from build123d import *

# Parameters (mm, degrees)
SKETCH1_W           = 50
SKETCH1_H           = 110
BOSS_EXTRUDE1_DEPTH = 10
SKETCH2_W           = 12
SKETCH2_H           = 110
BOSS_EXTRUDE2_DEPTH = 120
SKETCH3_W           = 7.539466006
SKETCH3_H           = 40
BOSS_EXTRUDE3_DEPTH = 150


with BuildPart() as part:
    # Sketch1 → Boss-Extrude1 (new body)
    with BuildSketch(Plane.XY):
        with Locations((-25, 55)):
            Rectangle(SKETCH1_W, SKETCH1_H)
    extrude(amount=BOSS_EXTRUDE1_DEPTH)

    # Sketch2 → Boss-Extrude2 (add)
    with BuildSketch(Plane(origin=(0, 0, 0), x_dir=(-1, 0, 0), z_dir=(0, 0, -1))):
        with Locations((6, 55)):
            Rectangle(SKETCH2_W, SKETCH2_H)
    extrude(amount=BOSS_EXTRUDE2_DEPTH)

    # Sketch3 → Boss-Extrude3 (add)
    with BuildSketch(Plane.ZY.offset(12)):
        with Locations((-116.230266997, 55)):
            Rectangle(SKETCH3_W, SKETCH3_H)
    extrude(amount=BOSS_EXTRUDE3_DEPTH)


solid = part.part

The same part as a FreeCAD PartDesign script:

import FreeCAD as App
import Part
import Sketcher

V = App.Vector

doc = App.newDocument("Part")
body = doc.addObject("PartDesign::Body", "Body")

# Sketch on XY plane
sketch1 = body.newObject("Sketcher::SketchObject", "Sketch")
sketch1.AttachmentSupport = (doc.getObject("XY_Plane"), [""])
sketch1.MapMode = "FlatFace"
sketch1.addGeometry([
    Part.LineSegment(V(-50, 110, 0), V(-50, 0, 0)),
    Part.LineSegment(V(-50, 0, 0), V(0, 0, 0)),
    Part.LineSegment(V(0, 0, 0), V(0, 110, 0)),
    Part.LineSegment(V(0, 110, 0), V(-50, 110, 0)),
], False)
sketch1.addConstraint([
    Sketcher.Constraint("Coincident", 0, 2, 1, 1),
    Sketcher.Constraint("Coincident", 1, 2, 2, 1),
    Sketcher.Constraint("Coincident", 2, 2, 3, 1),
    Sketcher.Constraint("Coincident", 3, 2, 0, 1),
    Sketcher.Constraint("Vertical", 0),
    Sketcher.Constraint("Horizontal", 1),
    Sketcher.Constraint("Vertical", 2),
    Sketcher.Constraint("Horizontal", 3),
    Sketcher.Constraint("Coincident", 1, 2, -1, 1),
    Sketcher.Constraint("DistanceX", 1, 1, 1, 2, 50.0),
    Sketcher.Constraint("DistanceY", 0, 2, 0, 1, 110.0),
])
pad1 = body.newObject("PartDesign::Pad", "Pad")
pad1.Profile = sketch1
pad1.Length = 10

# Sketch on XY plane
sketch2 = body.newObject("Sketcher::SketchObject", "Sketch001")
sketch2.AttachmentSupport = (doc.getObject("XY_Plane"), [""])
sketch2.MapMode = "FlatFace"
sketch2.addGeometry([
    Part.LineSegment(V(0, 110, 0), V(0, 0, 0)),
    Part.LineSegment(V(0, 0, 0), V(-12, 0, 0)),
    Part.LineSegment(V(-12, 0, 0), V(-12, 110, 0)),
    Part.LineSegment(V(-12, 110, 0), V(0, 110, 0)),
], False)
sketch2.addConstraint([
    Sketcher.Constraint("Coincident", 0, 2, 1, 1),
    Sketcher.Constraint("Coincident", 1, 2, 2, 1),
    Sketcher.Constraint("Coincident", 2, 2, 3, 1),
    Sketcher.Constraint("Coincident", 3, 2, 0, 1),
    Sketcher.Constraint("Vertical", 0),
    Sketcher.Constraint("Horizontal", 1),
    Sketcher.Constraint("Vertical", 2),
    Sketcher.Constraint("Horizontal", 3),
    Sketcher.Constraint("Coincident", 0, 2, -1, 1),
    Sketcher.Constraint("DistanceX", 1, 2, 1, 1, 12.0),
    Sketcher.Constraint("DistanceY", 0, 2, 0, 1, 110.0),
])
pad2 = body.newObject("PartDesign::Pad", "Pad001")
pad2.Profile = sketch2
pad2.Length = 120
pad2.Reversed = True

# Sketch on YZ plane
sketch3 = body.newObject("Sketcher::SketchObject", "Sketch002")
sketch3.AttachmentSupport = (doc.getObject("YZ_Plane"), [""])
sketch3.MapMode = "FlatFace"
sketch3.AttachmentOffset = App.Placement(V(0, 0, -12), App.Rotation())
sketch3.addGeometry([
    Part.LineSegment(V(75, -120, 0), V(35, -120, 0)),
    Part.LineSegment(V(35, -120, 0), V(35, -112.460534, 0)),
    Part.LineSegment(V(35, -112.460534, 0), V(75, -112.460534, 0)),
    Part.LineSegment(V(75, -112.460534, 0), V(75, -120, 0)),
], False)
sketch3.addConstraint([
    Sketcher.Constraint("Coincident", 0, 2, 1, 1),
    Sketcher.Constraint("Coincident", 1, 2, 2, 1),
    Sketcher.Constraint("Coincident", 2, 2, 3, 1),
    Sketcher.Constraint("Coincident", 3, 2, 0, 1),
    Sketcher.Constraint("Horizontal", 0),
    Sketcher.Constraint("Vertical", 1),
    Sketcher.Constraint("Horizontal", 2),
    Sketcher.Constraint("Vertical", 3),
    Sketcher.Constraint("DistanceX", 0, 2, 0, 1, 40.0),
    Sketcher.Constraint("DistanceX", -1, 1, 0, 2, 35.0),
    Sketcher.Constraint("DistanceY", 0, 2, -1, 1, 120.0),
    Sketcher.Constraint("DistanceY", 1, 1, 1, 2, 7.539466),
])
pad3 = body.newObject("PartDesign::Pad", "Pad002")
pad3.Profile = sketch3
pad3.Length = 150
pad3.Reversed = True

doc.recompute()
